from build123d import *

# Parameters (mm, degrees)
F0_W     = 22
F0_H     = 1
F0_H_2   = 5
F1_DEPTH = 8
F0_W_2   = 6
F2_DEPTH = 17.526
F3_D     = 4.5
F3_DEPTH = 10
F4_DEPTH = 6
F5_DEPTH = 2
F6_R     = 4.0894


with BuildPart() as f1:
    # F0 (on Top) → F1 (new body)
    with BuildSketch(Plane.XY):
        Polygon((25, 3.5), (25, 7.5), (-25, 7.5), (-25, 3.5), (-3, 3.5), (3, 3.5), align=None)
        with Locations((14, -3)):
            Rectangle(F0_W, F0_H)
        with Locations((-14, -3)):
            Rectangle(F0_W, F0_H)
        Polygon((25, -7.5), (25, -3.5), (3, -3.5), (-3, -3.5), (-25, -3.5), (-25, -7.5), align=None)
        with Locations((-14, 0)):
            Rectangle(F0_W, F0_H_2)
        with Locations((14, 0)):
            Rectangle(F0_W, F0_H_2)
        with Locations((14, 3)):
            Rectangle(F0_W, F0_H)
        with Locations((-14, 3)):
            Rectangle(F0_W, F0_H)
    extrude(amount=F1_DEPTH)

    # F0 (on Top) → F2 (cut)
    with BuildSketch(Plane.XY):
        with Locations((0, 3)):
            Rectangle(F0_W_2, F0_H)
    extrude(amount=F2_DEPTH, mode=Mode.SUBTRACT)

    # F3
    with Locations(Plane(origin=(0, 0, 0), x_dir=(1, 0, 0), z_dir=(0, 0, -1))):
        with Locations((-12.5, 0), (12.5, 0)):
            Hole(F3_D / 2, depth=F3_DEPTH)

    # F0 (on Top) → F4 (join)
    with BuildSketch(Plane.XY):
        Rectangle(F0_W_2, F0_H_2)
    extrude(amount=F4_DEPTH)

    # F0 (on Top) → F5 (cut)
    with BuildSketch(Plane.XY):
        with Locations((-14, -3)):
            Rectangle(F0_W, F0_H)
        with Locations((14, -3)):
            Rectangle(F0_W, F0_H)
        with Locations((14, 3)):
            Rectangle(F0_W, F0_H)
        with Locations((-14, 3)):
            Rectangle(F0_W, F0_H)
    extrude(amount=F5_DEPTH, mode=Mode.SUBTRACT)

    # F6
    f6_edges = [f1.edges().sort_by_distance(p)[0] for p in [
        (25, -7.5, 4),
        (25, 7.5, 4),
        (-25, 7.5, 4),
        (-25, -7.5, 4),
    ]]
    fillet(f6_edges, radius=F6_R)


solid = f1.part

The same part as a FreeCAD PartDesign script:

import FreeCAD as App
import Part
import Sketcher


def edges_at(feature, points):
    """Names of the edges that pass closest to the given points."""
    edges = feature.Shape.Edges
    near = lambda p: min(range(len(edges)), key=lambda i: edges[i].distToShape(Part.Vertex(*p))[0])
    return sorted({f"Edge{near(p) + 1}" for p in points})

doc = App.newDocument("Part")
body = doc.addObject("PartDesign::Body", "Body")

sketch1 = body.newObject("Sketcher::SketchObject", "Sketch")
sketch1.AttachmentSupport = (doc.getObject("XY_Plane"), [""])
sketch1.MapMode = "FlatFace"
sketch1.addGeometry([
    Part.LineSegment(App.Vector(25, 8, 0), App.Vector(-25, 8, 0)),
    Part.LineSegment(App.Vector(-25, 8, 0), App.Vector(-25, -8, 0)),
    Part.LineSegment(App.Vector(-25, -8, 0), App.Vector(25, -8, 0)),
    Part.LineSegment(App.Vector(25, -8, 0), App.Vector(25, 8, 0)),
    Part.LineSegment(App.Vector(-3, 4, 0), App.Vector(3, 4, 0)),
    Part.LineSegment(App.Vector(3, 4, 0), App.Vector(3, -4, 0)),
    Part.LineSegment(App.Vector(3, -4, 0), App.Vector(-3, -4, 0)),
    Part.LineSegment(App.Vector(-3, -4, 0), App.Vector(-3, 4, 0)),
], False)
sketch1.addConstraint([
    Sketcher.Constraint("Coincident", 0, 2, 1, 1),
    Sketcher.Constraint("Coincident", 1, 2, 2, 1),
    Sketcher.Constraint("Coincident", 2, 2, 3, 1),
    Sketcher.Constraint("Coincident", 3, 2, 0, 1),
    Sketcher.Constraint("Coincident", 4, 2, 5, 1),
    Sketcher.Constraint("Coincident", 5, 2, 6, 1),
    Sketcher.Constraint("Coincident", 6, 2, 7, 1),
    Sketcher.Constraint("Coincident", 7, 2, 4, 1),
    Sketcher.Constraint("Horizontal", 0),
    Sketcher.Constraint("Vertical", 1),
    Sketcher.Constraint("Horizontal", 2),
    Sketcher.Constraint("Vertical", 3),
    Sketcher.Constraint("Horizontal", 4),
    Sketcher.Constraint("Vertical", 5),
    Sketcher.Constraint("Horizontal", 6),
    Sketcher.Constraint("Vertical", 7),
    Sketcher.Constraint("Symmetric", 0, 2, 2, 2, -1, 1),
    Sketcher.Constraint("Symmetric", 4, 2, 6, 2, -1, 1),
    Sketcher.Constraint("DistanceX", 0, 2, 0, 1, 50.0),
    Sketcher.Constraint("DistanceX", 4, 1, 4, 2, 6.0),
    Sketcher.Constraint("DistanceY", 1, 2, 1, 1, 15.0),
    Sketcher.Constraint("DistanceY", 5, 2, 5, 1, 7.0),
])
pad1 = body.newObject("PartDesign::Pad", "Pad")
pad1.Profile = sketch1
pad1.Length = 8

sketch2 = body.newObject("Sketcher::SketchObject", "Sketch001")
sketch2.AttachmentSupport = (doc.getObject("XY_Plane"), [""])
sketch2.MapMode = "FlatFace"
sketch2.addGeometry([
    Part.LineSegment(App.Vector(-3, 3.5, 0), App.Vector(-3, 2.5, 0)),
    Part.LineSegment(App.Vector(-3, 2.5, 0), App.Vector(3, 2.5, 0)),
    Part.LineSegment(App.Vector(3, 2.5, 0), App.Vector(3, 3.5, 0)),
    Part.LineSegment(App.Vector(3, 3.5, 0), App.Vector(-3, 3.5, 0)),
], False)
sketch2.addConstraint([
    Sketcher.Constraint("Coincident", 0, 2, 1, 1),
    Sketcher.Constraint("Coincident", 1, 2, 2, 1),
    Sketcher.Constraint("Coincident", 2, 2, 3, 1),
    Sketcher.Constraint("Coincident", 3, 2, 0, 1),
    Sketcher.Constraint("Vertical", 0),
    Sketcher.Constraint("Horizontal", 1),
    Sketcher.Constraint("Vertical", 2),
    Sketcher.Constraint("Horizontal", 3),
    Sketcher.Constraint("DistanceX", 1, 1, 1, 2, 6.0),
    Sketcher.Constraint("DistanceY", 0, 2, 0, 1, 1.0),
    Sketcher.Constraint("DistanceX", 0, 2, -1, 1, 3.0),
    Sketcher.Constraint("DistanceY", -1, 1, 0, 2, 2.5),
])
pocket1 = body.newObject("PartDesign::Pocket", "Pocket")
pocket1.Profile = sketch2
pocket1.Length = 17.526
pocket1.Reversed = True

sketch3 = body.newObject("Sketcher::SketchObject", "Sketch002")
sketch3.AttachmentSupport = (doc.getObject("XY_Plane"), [""])
sketch3.MapMode = "FlatFace"
sketch3.addGeometry([
    Part.Circle(App.Vector(-12.5, 0, 0), App.Vector(0, 0, 1), 2.2),
    Part.Circle(App.Vector(12.5, 0, 0), App.Vector(0, 0, 1), 2.2),
], False)
sketch3.addConstraint([
    Sketcher.Constraint("Equal", 0, 1),
    Sketcher.Constraint("Symmetric", 0, 3, 1, 3, -1, 1),
    Sketcher.Constraint("PointOnObject", 0, 3, -1),
    Sketcher.Constraint("Diameter", 0, 4.5),
    Sketcher.Constraint("DistanceX", 0, 3, 1, 3, 25.0),
])
doc.recompute()
hole = body.newObject("PartDesign::Hole", "Hole")
hole.Profile = sketch3
hole.ThreadType = "None"
hole.Diameter = 4.5
hole.DepthType = "Dimension"
hole.Depth = 10
hole.DrillPoint = "Flat"
hole.Reversed = True

sketch4 = body.newObject("Sketcher::SketchObject", "Sketch003")
sketch4.AttachmentSupport = (doc.getObject("XY_Plane"), [""])
sketch4.MapMode = "FlatFace"
sketch4.addGeometry([
    Part.LineSegment(App.Vector(-3, 2, 0), App.Vector(-3, -2, 0)),
    Part.LineSegment(App.Vector(-3, -2, 0), App.Vector(3, -2, 0)),
    Part.LineSegment(App.Vector(3, -2, 0), App.Vector(3, 2, 0)),
    Part.LineSegment(App.Vector(3, 2, 0), App.Vector(-3, 2, 0)),
], False)
sketch4.addConstraint([
    Sketcher.Constraint("Coincident", 0, 2, 1, 1),
    Sketcher.Constraint("Coincident", 1, 2, 2, 1),
    Sketcher.Constraint("Coincident", 2, 2, 3, 1),
    Sketcher.Constraint("Coincident", 3, 2, 0, 1),
    Sketcher.Constraint("Vertical", 0),
    Sketcher.Constraint("Horizontal", 1),
    Sketcher.Constraint("Vertical", 2),
    Sketcher.Constraint("Horizontal", 3),
    Sketcher.Constraint("Symmetric", 0, 2, 2, 2, -1, 1),
    Sketcher.Constraint("DistanceX", 1, 1, 1, 2, 6.0),
    Sketcher.Constraint("DistanceY", 0, 2, 0, 1, 5.0),
])
pad2 = body.newObject("PartDesign::Pad", "Pad001")
pad2.Profile = sketch4
pad2.Length = 6

sketch5 = body.newObject("Sketcher::SketchObject", "Sketch004")
sketch5.AttachmentSupport = (doc.getObject("XY_Plane"), [""])
sketch5.MapMode = "FlatFace"
sketch5.addGeometry([
    Part.LineSegment(App.Vector(-25, -2.5, 0), App.Vector(-25, -3.5, 0)),
    Part.LineSegment(App.Vector(-25, -3.5, 0), App.Vector(-3, -3.5, 0)),
    Part.LineSegment(App.Vector(-3, -3.5, 0), App.Vector(-3, -2.5, 0)),
    Part.LineSegment(App.Vector(-3, -2.5, 0), App.Vector(-25, -2.5, 0)),
    Part.LineSegment(App.Vector(3, -2.5, 0), App.Vector(3, -3.5, 0)),
    Part.LineSegment(App.Vector(3, -3.5, 0), App.Vector(25, -3.5, 0)),
    Part.LineSegment(App.Vector(25, -3.5, 0), App.Vector(25, -2.5, 0)),
    Part.LineSegment(App.Vector(25, -2.5, 0), App.Vector(3, -2.5, 0)),
    Part.LineSegment(App.Vector(3, 3.5, 0), App.Vector(3, 2.5, 0)),
    Part.LineSegment(App.Vector(3, 2.5, 0), App.Vector(25, 2.5, 0)),
    Part.LineSegment(App.Vector(25, 2.5, 0), App.Vector(25, 3.5, 0)),
    Part.LineSegment(App.Vector(25, 3.5, 0), App.Vector(3, 3.5, 0)),
    Part.LineSegment(App.Vector(-25, 3.5, 0), App.Vector(-25, 2.5, 0)),
    Part.LineSegment(App.Vector(-25, 2.5, 0), App.Vector(-3, 2.5, 0)),
    Part.LineSegment(App.Vector(-3, 2.5, 0), App.Vector(-3, 3.5, 0)),
    Part.LineSegment(App.Vector(-3, 3.5, 0), App.Vector(-25, 3.5, 0)),
], False)
sketch5.addConstraint([
    Sketcher.Constraint("Coincident", 0, 2, 1, 1),
    Sketcher.Constraint("Coincident", 1, 2, 2, 1),
    Sketcher.Constraint("Coincident", 2, 2, 3, 1),
    Sketcher.Constraint("Coincident", 3, 2, 0, 1),
    Sketcher.Constraint("Coincident", 4, 2, 5, 1),
    Sketcher.Constraint("Coincident", 5, 2, 6, 1),
    Sketcher.Constraint("Coincident", 6, 2, 7, 1),
    Sketcher.Constraint("Coincident", 7, 2, 4, 1),
    Sketcher.Constraint("Coincident", 8, 2, 9, 1),
    Sketcher.Constraint("Coincident", 9, 2, 10, 1),
    Sketcher.Constraint("Coincident", 10, 2, 11, 1),
    Sketcher.Constraint("Coincident", 11, 2, 8, 1),
    Sketcher.Constraint("Coincident", 12, 2, 13, 1),
    Sketcher.Constraint("Coincident", 13, 2, 14, 1),
    Sketcher.Constraint("Coincident", 14, 2, 15, 1),
    Sketcher.Constraint("Coincident", 15, 2, 12, 1),
    Sketcher.Constraint("Vertical", 0),
    Sketcher.Constraint("Horizontal", 1),
    Sketcher.Constraint("Vertical", 2),
    Sketcher.Constraint("Horizontal", 3),
    Sketcher.Constraint("Vertical", 4),
    Sketcher.Constraint("Horizontal", 5),
    Sketcher.Constraint("Vertical", 6),
    Sketcher.Constraint("Horizontal", 7),
    Sketcher.Constraint("Vertical", 8),
    Sketcher.Constraint("Horizontal", 9),
    Sketcher.Constraint("Vertical", 10),
    Sketcher.Constraint("Horizontal", 11),
    Sketcher.Constraint("Vertical", 12),
    Sketcher.Constraint("Horizontal", 13),
    Sketcher.Constraint("Vertical", 14),
    Sketcher.Constraint("Horizontal", 15),
    Sketcher.Constraint("Symmetric", 2, 2, 8, 2, -1, 1),
    Sketcher.Constraint("Symmetric", 0, 2, 10, 2, -1, 1),
    Sketcher.Constraint("Symmetric", 6, 2, 12, 2, -1, 1),
    Sketcher.Constraint("Symmetric", 4, 2, 14, 2, -1, 1),
    Sketcher.Constraint("Symmetric", 1, 2, 4, 2, -2),
    Sketcher.Constraint("Symmetric", 3, 2, 6, 2, -2),
    Sketcher.Constraint("DistanceX", 1, 1, 1, 2, 22.0),
    Sketcher.Constraint("DistanceY", 0, 2, 0, 1, 1.0),
    Sketcher.Constraint("DistanceX", 0, 2, -1, 1, 25.0),
    Sketcher.Constraint("DistanceY", 7, 2, 8, 2, 5.0),
])
pocket2 = body.newObject("PartDesign::Pocket", "Pocket001")
pocket2.Profile = sketch5
pocket2.Length = 2
pocket2.Reversed = True
doc.recompute()

fillet = body.newObject("PartDesign::Fillet", "Fillet")
fillet.Base = (pocket2, edges_at(pocket2, [
    (25, -7.5, 4),
    (25, 7.5, 4),
    (-25, 7.5, 4),
    (-25, -7.5, 4),
]))
fillet.Radius = 4.0894

doc.recompute()
